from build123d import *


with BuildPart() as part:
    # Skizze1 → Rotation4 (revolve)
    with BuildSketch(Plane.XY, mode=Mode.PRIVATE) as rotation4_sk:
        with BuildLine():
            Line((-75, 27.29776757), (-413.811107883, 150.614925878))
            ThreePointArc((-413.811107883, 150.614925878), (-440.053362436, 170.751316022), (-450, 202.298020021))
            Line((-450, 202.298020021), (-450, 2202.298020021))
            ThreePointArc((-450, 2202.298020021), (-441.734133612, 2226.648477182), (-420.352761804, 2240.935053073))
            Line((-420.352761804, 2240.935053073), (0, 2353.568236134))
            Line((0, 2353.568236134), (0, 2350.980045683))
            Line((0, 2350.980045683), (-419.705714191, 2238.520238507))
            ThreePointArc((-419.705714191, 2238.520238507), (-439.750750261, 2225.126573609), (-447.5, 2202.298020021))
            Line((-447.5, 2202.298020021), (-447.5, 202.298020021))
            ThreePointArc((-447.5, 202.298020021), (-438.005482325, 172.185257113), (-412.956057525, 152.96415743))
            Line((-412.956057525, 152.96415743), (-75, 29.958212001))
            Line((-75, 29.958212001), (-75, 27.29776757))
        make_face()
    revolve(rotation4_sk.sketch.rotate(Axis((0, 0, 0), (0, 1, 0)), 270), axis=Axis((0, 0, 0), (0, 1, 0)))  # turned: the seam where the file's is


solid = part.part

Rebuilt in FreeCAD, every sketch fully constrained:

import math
import FreeCAD as App
import Part
import Sketcher

V = App.Vector
Q = App.Units.Quantity

doc = App.newDocument("Part")
body = doc.addObject("PartDesign::Body", "Body")

sketch1 = body.newObject("Sketcher::SketchObject", "Sketch")
sketch1.AttachmentSupport = (doc.getObject("XY_Plane"), [""])
sketch1.MapMode = "FlatFace"
sketch1.addGeometry(Part.LineSegment(V(-413.8, 150.6, 0), V(-75, 27.3, 0)), False)
sketch1.addGeometry(Part.LineSegment(V(-75, 27.3, 0), V(-75, 30, 0)), False)
sketch1.addGeometry(Part.LineSegment(V(-75, 30, 0), V(-413, 153, 0)), False)
sketch1.addGeometry(Part.ArcOfCircle(Part.Circle(V(-395, 202.3, 0), V(0, 0, 1), 52.5), math.radians(-180), math.radians(-110)), False)
sketch1.addGeometry(Part.LineSegment(V(-447.5, 202.3, 0), V(-447.5, 2202.3, 0)), False)
sketch1.addGeometry(Part.ArcOfCircle(Part.Circle(V(-410, 2202.3, 0), V(0, 0, 1), 37.5), math.radians(105), math.radians(180)), False)
sketch1.addGeometry(Part.LineSegment(V(-419.7, 2238.5, 0), V(0, 2351, 0)), False)
sketch1.addGeometry(Part.LineSegment(V(0, 2351, 0), V(0, 2353.6, 0)), False)
sketch1.addGeometry(Part.LineSegment(V(0, 2353.6, 0), V(-420.4, 2240.9, 0)), False)
sketch1.addGeometry(Part.ArcOfCircle(Part.Circle(V(-410, 2202.3, 0), V(0, 0, 1), 40), math.radians(105), math.radians(180)), False)
sketch1.addGeometry(Part.LineSegment(V(-450, 2202.3, 0), V(-450, 202.3, 0)), False)
sketch1.addGeometry(Part.ArcOfCircle(Part.Circle(V(-395, 202.3, 0), V(0, 0, 1), 55), math.radians(180), math.radians(250)), False)
sketch1.addConstraint(Sketcher.Constraint("Coincident", 0, 2, 1, 1))
sketch1.addConstraint(Sketcher.Constraint("Coincident", 1, 2, 2, 1))
sketch1.addConstraint(Sketcher.Constraint("Tangent", 2, 2, 3, 2))
sketch1.addConstraint(Sketcher.Constraint("Tangent", 3, 1, 4, 1))
sketch1.addConstraint(Sketcher.Constraint("Tangent", 4, 2, 5, 2))
sketch1.addConstraint(Sketcher.Constraint("Tangent", 5, 1, 6, 1))
sketch1.addConstraint(Sketcher.Constraint("Coincident", 6, 2, 7, 1))
sketch1.addConstraint(Sketcher.Constraint("Coincident", 7, 2, 8, 1))
sketch1.addConstraint(Sketcher.Constraint("Tangent", 8, 2, 9, 1))
sketch1.addConstraint(Sketcher.Constraint("Tangent", 9, 2, 10, 1))
sketch1.addConstraint(Sketcher.Constraint("Tangent", 10, 2, 11, 1))
sketch1.addConstraint(Sketcher.Constraint("Tangent", 11, 2, 0, 1))
sketch1.addConstraint(Sketcher.Constraint("Vertical", 1))
sketch1.addConstraint(Sketcher.Constraint("Vertical", 4))
sketch1.addConstraint(Sketcher.Constraint("Vertical", 7))
sketch1.addConstraint(Sketcher.Constraint("Vertical", 10))
sketch1.addConstraint(Sketcher.Constraint("Coincident", 9, 3, 5, 3))
sketch1.addConstraint(Sketcher.Constraint("Coincident", 11, 3, 3, 3))
sketch1.addConstraint(Sketcher.Constraint("PointOnObject", 6, 2, -2))
sketch1.addConstraint(Sketcher.Constraint("Parallel", 0, 2))
sketch1.addConstraint(Sketcher.Constraint("Parallel", 6, 8))
sketch1.addConstraint(Sketcher.Constraint("Radius", 9, Q("40 mm")))
sketch1.addConstraint(Sketcher.Constraint("Radius", 11, Q("55 mm")))
sketch1.addConstraint(Sketcher.Constraint("Radius", 3, Q("52.5 mm")))
sketch1.addConstraint(Sketcher.Constraint("DistanceY", 4, 1, 4, 2, Q("2000 mm")))
sketch1.addConstraint(Sketcher.Constraint("Angle", 0, Q("-20 deg")))
sketch1.addConstraint(Sketcher.Constraint("Angle", 6, Q("15 deg")))
sketch1.addConstraint(Sketcher.Constraint("DistanceX", 3, 3, -1, 1, Q("395 mm")))
sketch1.addConstraint(Sketcher.Constraint("DistanceX", 0, 2, -1, 1, Q("75 mm")))
sketch1.addConstraint(Sketcher.Constraint("DistanceY", -1, 1, 3, 3, Q("202.29802 mm")))
revolution = body.newObject("PartDesign::Revolution", "Revolution")
revolution.Profile = sketch1
revolution.ReferenceAxis = (sketch1, ["V_Axis"])
revolution.Angle = 360

doc.recompute()
